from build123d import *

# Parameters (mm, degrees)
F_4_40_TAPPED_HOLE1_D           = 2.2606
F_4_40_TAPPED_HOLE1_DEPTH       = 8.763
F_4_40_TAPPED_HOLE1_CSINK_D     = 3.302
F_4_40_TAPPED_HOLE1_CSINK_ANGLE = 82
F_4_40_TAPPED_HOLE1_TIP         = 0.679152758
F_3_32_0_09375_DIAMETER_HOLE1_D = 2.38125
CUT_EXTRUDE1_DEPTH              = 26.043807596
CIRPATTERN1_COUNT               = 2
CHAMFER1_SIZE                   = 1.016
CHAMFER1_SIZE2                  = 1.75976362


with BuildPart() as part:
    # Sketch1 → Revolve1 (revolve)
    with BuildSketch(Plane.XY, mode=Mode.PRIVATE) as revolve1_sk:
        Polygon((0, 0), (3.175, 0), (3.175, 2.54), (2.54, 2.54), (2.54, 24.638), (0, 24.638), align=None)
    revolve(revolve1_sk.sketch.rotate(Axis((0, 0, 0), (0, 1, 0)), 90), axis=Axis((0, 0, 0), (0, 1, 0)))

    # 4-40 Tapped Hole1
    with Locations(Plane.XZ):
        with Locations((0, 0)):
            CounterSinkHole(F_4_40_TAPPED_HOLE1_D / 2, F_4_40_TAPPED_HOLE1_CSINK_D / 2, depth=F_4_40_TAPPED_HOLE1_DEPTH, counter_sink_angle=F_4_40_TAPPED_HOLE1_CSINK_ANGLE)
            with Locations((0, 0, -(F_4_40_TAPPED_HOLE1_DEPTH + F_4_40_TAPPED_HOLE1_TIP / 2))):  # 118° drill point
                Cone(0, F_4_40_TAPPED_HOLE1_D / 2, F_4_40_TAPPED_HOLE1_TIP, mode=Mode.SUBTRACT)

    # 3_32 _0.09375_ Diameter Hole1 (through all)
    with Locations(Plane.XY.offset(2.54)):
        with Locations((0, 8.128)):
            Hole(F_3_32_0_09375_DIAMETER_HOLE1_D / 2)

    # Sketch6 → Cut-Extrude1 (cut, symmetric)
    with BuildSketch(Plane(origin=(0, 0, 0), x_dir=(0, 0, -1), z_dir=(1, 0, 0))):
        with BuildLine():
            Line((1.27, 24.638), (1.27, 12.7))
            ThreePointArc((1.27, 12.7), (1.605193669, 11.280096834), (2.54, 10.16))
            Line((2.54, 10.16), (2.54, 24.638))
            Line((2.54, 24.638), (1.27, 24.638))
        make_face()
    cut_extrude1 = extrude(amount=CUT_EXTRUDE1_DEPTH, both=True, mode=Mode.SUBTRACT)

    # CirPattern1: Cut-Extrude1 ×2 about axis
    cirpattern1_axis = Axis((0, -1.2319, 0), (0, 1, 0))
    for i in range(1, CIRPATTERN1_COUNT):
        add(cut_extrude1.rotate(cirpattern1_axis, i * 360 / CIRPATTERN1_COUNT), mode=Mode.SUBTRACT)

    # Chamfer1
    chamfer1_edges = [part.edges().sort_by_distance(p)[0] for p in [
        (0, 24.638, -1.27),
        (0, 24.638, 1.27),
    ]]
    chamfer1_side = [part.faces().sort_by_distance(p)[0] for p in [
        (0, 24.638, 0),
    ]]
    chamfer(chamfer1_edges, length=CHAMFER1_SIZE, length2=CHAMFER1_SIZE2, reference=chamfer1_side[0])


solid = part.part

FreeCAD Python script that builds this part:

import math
import FreeCAD as App
import Part
import Sketcher
from FreeCAD import Vector
Q = App.Units.Quantity


def edges_at(feature, points):
    """Names of the edges that pass closest to the given points."""
    edges = feature.Shape.Edges
    near = lambda p: min(range(len(edges)), key=lambda i: edges[i].distToShape(Part.Vertex(*p))[0])
    return sorted({f"Edge{near(p) + 1}" for p in points})

doc = App.newDocument("Part")
body = doc.addObject("PartDesign::Body", "Body")

sketch1 = body.newObject("Sketcher::SketchObject", "Sketch")
sketch1.AttachmentSupport = (doc.getObject("XY_Plane"), [""])
sketch1.MapMode = "FlatFace"
sketch1.addGeometry([
    Part.LineSegment(Vector(0, 0, 0), Vector(3.175, 0, 0)),
    Part.LineSegment(Vector(3.175, 0, 0), Vector(3.175, 2.54, 0)),
    Part.LineSegment(Vector(3.175, 2.54, 0), Vector(2.54, 2.54, 0)),
    Part.LineSegment(Vector(2.54, 2.54, 0), Vector(2.54, 24.638, 0)),
    Part.LineSegment(Vector(2.54, 24.638, 0), Vector(0, 24.638, 0)),
    Part.LineSegment(Vector(0, 24.638, 0), Vector(0, 0, 0)),
], False)
sketch1.addConstraint([
    Sketcher.Constraint("Coincident", 0, 2, 1, 1),
    Sketcher.Constraint("Coincident", 1, 2, 2, 1),
    Sketcher.Constraint("Coincident", 2, 2, 3, 1),
    Sketcher.Constraint("Coincident", 3, 2, 4, 1),
    Sketcher.Constraint("Coincident", 4, 2, 5, 1),
    Sketcher.Constraint("Coincident", 5, 2, 0, 1),
    Sketcher.Constraint("Horizontal", 0),
    Sketcher.Constraint("Vertical", 1),
    Sketcher.Constraint("Horizontal", 2),
    Sketcher.Constraint("Vertical", 3),
    Sketcher.Constraint("Horizontal", 4),
    Sketcher.Constraint("Vertical", 5),
    Sketcher.Constraint("Coincident", 5, 2, -1, 1),
    Sketcher.Constraint("Equal", 4, 1),
    Sketcher.Constraint("DistanceX", 4, 2, 4, 1, Q("0.1 in")),
    Sketcher.Constraint("DistanceY", 3, 1, 3, 2, Q("0.87 in")),
    Sketcher.Constraint("DistanceX", 0, 1, 0, 2, Q("0.125 in")),
])
revolution = body.newObject("PartDesign::Revolution", "Revolution")
revolution.Profile = sketch1
revolution.ReferenceAxis = (sketch1, ["V_Axis"])
revolution.Angle = 360

sketch2 = body.newObject("Sketcher::SketchObject", "Sketch001")
sketch2.AttachmentSupport = (doc.getObject("XZ_Plane"), [""])
sketch2.MapMode = "FlatFace"
sketch2.addGeometry(Part.Circle(Vector(0, 0, 0), Vector(0, 0, 1), 1.1303), False)
sketch2.addConstraint([
    Sketcher.Constraint("Coincident", 0, 3, -1, 1),
    Sketcher.Constraint("Diameter", 0, Q("0.089 in")),
])
doc.recompute()
hole = body.newObject("PartDesign::Hole", "Hole")
hole.Profile = sketch2
hole.ThreadType = "None"
hole.Diameter = Q("0.089 in")
hole.DepthType = "Dimension"
hole.Depth = Q("0.345 in")
hole.DrillPoint = "Angled"
hole.DrillPointAngle = 118
hole.HoleCutType = "Countersink"
hole.HoleCutDiameter = Q("0.13 in")
hole.HoleCutCountersinkAngle = 82

sketch3 = body.newObject("Sketcher::SketchObject", "Sketch002")
sketch3.AttachmentSupport = (doc.getObject("XY_Plane"), [""])
sketch3.MapMode = "FlatFace"
sketch3.AttachmentOffset = App.Placement(Vector(0, 0, 0.1 * 25.4), App.Rotation())
sketch3.addGeometry(Part.Circle(Vector(0, 8.128, 0), Vector(0, 0, 1), 1.190625), False)
sketch3.addConstraint([
    Sketcher.Constraint("PointOnObject", 0, 3, -2),
    Sketcher.Constraint("Diameter", 0, Q("0.09375 in")),
    Sketcher.Constraint("DistanceY", -1, 1, 0, 3, Q("0.32 in")),
])
doc.recompute()
hole2 = body.newObject("PartDesign::Hole", "Hole001")
hole2.Profile = sketch3
hole2.ThreadType = "None"
hole2.Diameter = Q("0.09375 in")
hole2.DepthType = "ThroughAll"

sketch4 = body.newObject("Sketcher::SketchObject", "Sketch003")
sketch4.AttachmentSupport = (doc.getObject("YZ_Plane"), [""])
sketch4.MapMode = "FlatFace"
sketch4.addGeometry([
    Part.LineSegment(Vector(24.638, -1.27, 0), Vector(12.7, -1.27, 0)),
    Part.ArcOfCircle(Part.Circle(Vector(12.7, -4.445, 0), Vector(0, 0, 1), 3.175), math.radians(90), math.radians(143.130102)),
    Part.LineSegment(Vector(10.16, -2.54, 0), Vector(24.638, -2.54, 0)),
    Part.LineSegment(Vector(24.638, -2.54, 0), Vector(24.638, -1.27, 0)),
], False)
sketch4.addConstraint([
    Sketcher.Constraint("Tangent", 0, 2, 1, 1),
    Sketcher.Constraint("Coincident", 1, 2, 2, 1),
    Sketcher.Constraint("Coincident", 2, 2, 3, 1),
    Sketcher.Constraint("Coincident", 3, 2, 0, 1),
    Sketcher.Constraint("Horizontal", 0),
    Sketcher.Constraint("Horizontal", 2),
    Sketcher.Constraint("Vertical", 3),
    Sketcher.Constraint("Radius", 1, Q("0.125 in")),
    Sketcher.Constraint("DistanceX", 0, 2, 0, 1, Q("0.47 in")),
    Sketcher.Constraint("DistanceX", 2, 1, 2, 2, Q("0.57 in")),
    Sketcher.Constraint("DistanceX", -1, 1, 1, 3, Q("0.5 in")),
    Sketcher.Constraint("DistanceY", 1, 2, -1, 1, Q("0.1 in")),
])
pocket1 = body.newObject("PartDesign::Pocket", "Pocket")
pocket1.Profile = sketch4
pocket1.Length = 52.087615
pocket1.Midplane = True
doc.recompute()

polarpattern = body.newObject("PartDesign::PolarPattern", "PolarPattern")
polarpattern.Originals = [pocket1]
polarpattern.Axis = (doc.getObject("Y_Axis"), [""])
polarpattern.Angle = 360
polarpattern.Occurrences = 2
body.Tip = polarpattern
doc.recompute()

chamfer = body.newObject("PartDesign::Chamfer", "Chamfer")
chamfer.Base = (polarpattern, edges_at(polarpattern, [(0, 24.638, -1.27), (0, 24.638, 1.27)]))
chamfer.ChamferType = "Two distances"
chamfer.Size = Q("0.04 in")
chamfer.Size2 = 1.759764

doc.recompute()
